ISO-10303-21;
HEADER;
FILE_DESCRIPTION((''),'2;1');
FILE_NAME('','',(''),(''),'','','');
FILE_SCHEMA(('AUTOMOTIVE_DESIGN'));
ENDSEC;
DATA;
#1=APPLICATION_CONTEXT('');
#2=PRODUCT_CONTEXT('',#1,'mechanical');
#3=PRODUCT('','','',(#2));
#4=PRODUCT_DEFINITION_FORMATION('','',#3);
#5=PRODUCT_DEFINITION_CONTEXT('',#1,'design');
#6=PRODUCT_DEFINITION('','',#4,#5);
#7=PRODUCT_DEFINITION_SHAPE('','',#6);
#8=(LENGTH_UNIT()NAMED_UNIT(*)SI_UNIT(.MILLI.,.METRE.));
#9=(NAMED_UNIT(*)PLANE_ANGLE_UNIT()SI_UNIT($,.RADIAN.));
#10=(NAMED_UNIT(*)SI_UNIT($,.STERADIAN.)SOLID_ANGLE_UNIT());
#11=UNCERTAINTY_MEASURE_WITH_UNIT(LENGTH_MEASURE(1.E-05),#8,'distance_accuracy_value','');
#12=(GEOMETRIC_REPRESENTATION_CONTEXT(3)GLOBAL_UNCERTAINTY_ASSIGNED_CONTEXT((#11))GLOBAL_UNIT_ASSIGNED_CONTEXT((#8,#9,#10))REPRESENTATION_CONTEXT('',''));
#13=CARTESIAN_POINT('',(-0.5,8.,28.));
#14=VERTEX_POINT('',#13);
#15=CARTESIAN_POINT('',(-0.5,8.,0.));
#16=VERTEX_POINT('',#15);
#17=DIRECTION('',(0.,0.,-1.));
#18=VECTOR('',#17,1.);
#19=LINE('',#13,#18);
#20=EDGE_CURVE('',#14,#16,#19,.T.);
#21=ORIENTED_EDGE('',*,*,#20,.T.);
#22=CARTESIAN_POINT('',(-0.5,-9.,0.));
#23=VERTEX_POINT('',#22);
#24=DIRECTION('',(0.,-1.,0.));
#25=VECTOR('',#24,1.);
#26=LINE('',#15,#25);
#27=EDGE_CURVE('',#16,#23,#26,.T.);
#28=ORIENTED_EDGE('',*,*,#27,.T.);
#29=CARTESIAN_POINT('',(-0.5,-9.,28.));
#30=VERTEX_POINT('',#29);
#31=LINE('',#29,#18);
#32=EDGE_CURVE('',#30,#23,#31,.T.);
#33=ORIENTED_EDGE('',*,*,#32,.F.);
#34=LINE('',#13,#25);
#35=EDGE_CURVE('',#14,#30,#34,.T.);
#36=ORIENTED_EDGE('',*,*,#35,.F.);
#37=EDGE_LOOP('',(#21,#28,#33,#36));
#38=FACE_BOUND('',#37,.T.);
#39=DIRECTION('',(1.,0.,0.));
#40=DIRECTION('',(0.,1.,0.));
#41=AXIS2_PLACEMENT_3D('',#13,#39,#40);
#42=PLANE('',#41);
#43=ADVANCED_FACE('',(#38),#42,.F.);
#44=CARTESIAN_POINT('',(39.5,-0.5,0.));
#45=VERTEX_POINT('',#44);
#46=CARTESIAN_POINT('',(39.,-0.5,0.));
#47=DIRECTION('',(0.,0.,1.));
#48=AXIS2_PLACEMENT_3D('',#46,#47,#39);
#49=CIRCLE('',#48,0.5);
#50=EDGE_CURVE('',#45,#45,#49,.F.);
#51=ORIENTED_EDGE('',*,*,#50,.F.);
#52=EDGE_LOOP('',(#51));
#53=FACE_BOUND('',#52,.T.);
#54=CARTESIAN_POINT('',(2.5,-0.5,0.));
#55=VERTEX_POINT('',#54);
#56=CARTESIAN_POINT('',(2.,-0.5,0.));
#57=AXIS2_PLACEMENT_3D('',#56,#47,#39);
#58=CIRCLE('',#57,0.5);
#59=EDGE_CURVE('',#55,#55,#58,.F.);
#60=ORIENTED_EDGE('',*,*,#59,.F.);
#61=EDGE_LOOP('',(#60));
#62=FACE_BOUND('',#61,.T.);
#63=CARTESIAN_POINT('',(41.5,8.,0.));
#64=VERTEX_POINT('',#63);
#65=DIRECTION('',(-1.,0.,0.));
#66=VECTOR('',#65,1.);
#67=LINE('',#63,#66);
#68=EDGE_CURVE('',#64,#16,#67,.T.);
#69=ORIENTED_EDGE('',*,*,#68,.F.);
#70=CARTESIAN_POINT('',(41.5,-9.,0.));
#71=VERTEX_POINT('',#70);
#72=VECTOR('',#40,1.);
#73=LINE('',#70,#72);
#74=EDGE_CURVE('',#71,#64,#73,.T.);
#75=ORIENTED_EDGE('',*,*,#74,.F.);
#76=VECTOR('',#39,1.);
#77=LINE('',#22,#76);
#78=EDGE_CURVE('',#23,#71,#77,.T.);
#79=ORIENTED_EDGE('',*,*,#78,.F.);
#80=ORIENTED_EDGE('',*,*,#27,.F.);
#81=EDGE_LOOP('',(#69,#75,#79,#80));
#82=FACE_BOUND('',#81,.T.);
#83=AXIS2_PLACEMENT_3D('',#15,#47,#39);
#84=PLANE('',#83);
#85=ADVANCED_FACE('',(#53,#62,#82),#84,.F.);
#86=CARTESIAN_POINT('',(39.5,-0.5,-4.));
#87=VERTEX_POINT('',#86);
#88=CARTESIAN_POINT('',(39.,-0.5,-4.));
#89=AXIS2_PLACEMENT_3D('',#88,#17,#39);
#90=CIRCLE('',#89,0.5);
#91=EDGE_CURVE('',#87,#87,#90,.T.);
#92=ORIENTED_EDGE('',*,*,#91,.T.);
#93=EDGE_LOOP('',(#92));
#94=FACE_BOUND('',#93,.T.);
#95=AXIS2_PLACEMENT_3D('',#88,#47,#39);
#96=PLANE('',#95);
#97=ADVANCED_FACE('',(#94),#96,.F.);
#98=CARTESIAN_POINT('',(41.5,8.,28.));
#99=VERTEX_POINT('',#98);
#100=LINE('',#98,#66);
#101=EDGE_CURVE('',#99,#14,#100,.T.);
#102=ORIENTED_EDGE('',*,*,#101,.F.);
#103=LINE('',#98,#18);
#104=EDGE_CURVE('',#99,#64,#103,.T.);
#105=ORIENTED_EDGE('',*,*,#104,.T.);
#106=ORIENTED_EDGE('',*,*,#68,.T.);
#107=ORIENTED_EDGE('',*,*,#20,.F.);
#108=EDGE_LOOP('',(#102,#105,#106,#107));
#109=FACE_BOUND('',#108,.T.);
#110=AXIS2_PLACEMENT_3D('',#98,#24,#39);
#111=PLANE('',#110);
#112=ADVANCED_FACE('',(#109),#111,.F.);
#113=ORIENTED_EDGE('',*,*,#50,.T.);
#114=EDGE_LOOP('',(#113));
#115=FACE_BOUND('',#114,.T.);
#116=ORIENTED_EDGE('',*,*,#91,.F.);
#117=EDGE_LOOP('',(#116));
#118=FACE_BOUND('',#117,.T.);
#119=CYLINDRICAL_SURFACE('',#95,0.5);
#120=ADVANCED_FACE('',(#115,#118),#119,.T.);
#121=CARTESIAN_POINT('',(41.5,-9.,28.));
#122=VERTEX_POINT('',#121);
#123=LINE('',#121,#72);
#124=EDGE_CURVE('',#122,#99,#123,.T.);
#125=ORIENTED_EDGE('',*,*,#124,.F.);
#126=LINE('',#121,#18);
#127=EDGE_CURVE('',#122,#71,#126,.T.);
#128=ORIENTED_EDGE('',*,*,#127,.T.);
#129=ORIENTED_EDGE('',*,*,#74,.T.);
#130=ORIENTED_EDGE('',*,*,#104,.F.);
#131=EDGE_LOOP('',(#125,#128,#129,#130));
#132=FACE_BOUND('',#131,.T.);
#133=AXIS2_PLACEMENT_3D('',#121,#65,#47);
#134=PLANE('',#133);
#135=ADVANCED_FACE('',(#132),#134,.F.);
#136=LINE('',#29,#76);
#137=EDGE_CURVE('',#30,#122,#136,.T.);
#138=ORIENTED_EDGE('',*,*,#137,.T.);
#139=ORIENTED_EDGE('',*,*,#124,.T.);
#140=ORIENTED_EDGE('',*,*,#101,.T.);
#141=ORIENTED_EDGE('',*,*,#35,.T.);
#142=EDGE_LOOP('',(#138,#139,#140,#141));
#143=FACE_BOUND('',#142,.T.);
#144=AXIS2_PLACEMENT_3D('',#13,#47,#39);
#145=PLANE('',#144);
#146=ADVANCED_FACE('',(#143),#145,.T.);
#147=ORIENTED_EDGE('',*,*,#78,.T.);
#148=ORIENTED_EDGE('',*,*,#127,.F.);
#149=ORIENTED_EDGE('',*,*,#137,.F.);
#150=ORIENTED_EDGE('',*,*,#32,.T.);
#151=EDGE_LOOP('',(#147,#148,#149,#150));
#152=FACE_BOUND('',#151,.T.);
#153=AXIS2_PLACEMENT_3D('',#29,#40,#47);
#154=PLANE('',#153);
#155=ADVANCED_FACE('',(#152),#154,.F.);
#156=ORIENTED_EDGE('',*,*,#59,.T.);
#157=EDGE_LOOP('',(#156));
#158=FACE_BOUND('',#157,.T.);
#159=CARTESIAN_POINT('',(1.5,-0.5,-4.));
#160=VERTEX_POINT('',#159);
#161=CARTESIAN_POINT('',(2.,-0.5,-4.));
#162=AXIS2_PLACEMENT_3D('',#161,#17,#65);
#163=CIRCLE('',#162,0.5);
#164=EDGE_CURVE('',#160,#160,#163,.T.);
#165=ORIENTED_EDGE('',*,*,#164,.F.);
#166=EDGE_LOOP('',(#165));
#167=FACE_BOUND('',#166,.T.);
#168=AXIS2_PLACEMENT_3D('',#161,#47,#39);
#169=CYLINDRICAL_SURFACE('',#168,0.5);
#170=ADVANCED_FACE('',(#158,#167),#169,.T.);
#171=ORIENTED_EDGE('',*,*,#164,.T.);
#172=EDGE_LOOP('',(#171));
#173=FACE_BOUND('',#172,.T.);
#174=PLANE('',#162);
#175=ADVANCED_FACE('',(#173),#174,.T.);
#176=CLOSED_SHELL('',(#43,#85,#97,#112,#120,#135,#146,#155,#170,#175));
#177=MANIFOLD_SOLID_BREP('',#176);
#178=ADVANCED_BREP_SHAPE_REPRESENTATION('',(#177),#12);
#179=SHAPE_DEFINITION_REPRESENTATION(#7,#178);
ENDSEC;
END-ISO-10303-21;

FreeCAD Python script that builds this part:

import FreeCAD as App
import Part
import Sketcher

doc = App.newDocument("Part")
body = doc.addObject("PartDesign::Body", "Body")

# Sketch on XY plane
sketch1 = body.newObject("Sketcher::SketchObject", "Sketch")
sketch1.AttachmentSupport = (doc.getObject("XY_Plane"), [""])
sketch1.MapMode = "FlatFace"
sketch1.addGeometry([
    Part.LineSegment(App.Vector(0, 8, 0), App.Vector(0, -9, 0)),
    Part.LineSegment(App.Vector(0, -9, 0), App.Vector(42, -9, 0)),
    Part.LineSegment(App.Vector(42, -9, 0), App.Vector(42, 8, 0)),
    Part.LineSegment(App.Vector(42, 8, 0), App.Vector(0, 8, 0)),
], False)
sketch1.addConstraint([
    Sketcher.Constraint("Coincident", 0, 2, 1, 1),
    Sketcher.Constraint("Coincident", 1, 2, 2, 1),
    Sketcher.Constraint("Coincident", 2, 2, 3, 1),
    Sketcher.Constraint("Coincident", 3, 2, 0, 1),
    Sketcher.Constraint("Vertical", 0),
    Sketcher.Constraint("Horizontal", 1),
    Sketcher.Constraint("Vertical", 2),
    Sketcher.Constraint("Horizontal", 3),
    Sketcher.Constraint("DistanceX", 1, 1, 1, 2, 42.0),
    Sketcher.Constraint("DistanceY", 0, 2, 0, 1, 17.0),
    Sketcher.Constraint("DistanceY", 0, 2, -1, 1, 9.0),
    Sketcher.Constraint("DistanceX", 0, 2, -1, 1, 0.5),
])
pad1 = body.newObject("PartDesign::Pad", "Pad")
pad1.Profile = sketch1
pad1.Length = 28

# Sketch on XY plane
sketch2 = body.newObject("Sketcher::SketchObject", "Sketch001")
sketch2.AttachmentSupport = (doc.getObject("XY_Plane"), [""])
sketch2.MapMode = "FlatFace"
sketch2.addGeometry([
    Part.Circle(App.Vector(2, -0.5, 0), App.Vector(0, 0, 1), 0.5),
    Part.Circle(App.Vector(39, -0.5, 0), App.Vector(0, 0, 1), 0.5),
], False)
sketch2.addConstraint([
    Sketcher.Constraint("Equal", 0, 1),
    Sketcher.Constraint("Horizontal", 0, 3, 1, 3),
    Sketcher.Constraint("Diameter", 0, 1.0),
    Sketcher.Constraint("DistanceX", -1, 1, 0, 3, 2.0),
    Sketcher.Constraint("DistanceX", -1, 1, 1, 3, 39.0),
    Sketcher.Constraint("DistanceY", 0, 3, -1, 1, 0.5),
])
pad2 = body.newObject("PartDesign::Pad", "Pad001")
pad2.Profile = sketch2
pad2.Length = 4
pad2.Reversed = True

doc.recompute()
